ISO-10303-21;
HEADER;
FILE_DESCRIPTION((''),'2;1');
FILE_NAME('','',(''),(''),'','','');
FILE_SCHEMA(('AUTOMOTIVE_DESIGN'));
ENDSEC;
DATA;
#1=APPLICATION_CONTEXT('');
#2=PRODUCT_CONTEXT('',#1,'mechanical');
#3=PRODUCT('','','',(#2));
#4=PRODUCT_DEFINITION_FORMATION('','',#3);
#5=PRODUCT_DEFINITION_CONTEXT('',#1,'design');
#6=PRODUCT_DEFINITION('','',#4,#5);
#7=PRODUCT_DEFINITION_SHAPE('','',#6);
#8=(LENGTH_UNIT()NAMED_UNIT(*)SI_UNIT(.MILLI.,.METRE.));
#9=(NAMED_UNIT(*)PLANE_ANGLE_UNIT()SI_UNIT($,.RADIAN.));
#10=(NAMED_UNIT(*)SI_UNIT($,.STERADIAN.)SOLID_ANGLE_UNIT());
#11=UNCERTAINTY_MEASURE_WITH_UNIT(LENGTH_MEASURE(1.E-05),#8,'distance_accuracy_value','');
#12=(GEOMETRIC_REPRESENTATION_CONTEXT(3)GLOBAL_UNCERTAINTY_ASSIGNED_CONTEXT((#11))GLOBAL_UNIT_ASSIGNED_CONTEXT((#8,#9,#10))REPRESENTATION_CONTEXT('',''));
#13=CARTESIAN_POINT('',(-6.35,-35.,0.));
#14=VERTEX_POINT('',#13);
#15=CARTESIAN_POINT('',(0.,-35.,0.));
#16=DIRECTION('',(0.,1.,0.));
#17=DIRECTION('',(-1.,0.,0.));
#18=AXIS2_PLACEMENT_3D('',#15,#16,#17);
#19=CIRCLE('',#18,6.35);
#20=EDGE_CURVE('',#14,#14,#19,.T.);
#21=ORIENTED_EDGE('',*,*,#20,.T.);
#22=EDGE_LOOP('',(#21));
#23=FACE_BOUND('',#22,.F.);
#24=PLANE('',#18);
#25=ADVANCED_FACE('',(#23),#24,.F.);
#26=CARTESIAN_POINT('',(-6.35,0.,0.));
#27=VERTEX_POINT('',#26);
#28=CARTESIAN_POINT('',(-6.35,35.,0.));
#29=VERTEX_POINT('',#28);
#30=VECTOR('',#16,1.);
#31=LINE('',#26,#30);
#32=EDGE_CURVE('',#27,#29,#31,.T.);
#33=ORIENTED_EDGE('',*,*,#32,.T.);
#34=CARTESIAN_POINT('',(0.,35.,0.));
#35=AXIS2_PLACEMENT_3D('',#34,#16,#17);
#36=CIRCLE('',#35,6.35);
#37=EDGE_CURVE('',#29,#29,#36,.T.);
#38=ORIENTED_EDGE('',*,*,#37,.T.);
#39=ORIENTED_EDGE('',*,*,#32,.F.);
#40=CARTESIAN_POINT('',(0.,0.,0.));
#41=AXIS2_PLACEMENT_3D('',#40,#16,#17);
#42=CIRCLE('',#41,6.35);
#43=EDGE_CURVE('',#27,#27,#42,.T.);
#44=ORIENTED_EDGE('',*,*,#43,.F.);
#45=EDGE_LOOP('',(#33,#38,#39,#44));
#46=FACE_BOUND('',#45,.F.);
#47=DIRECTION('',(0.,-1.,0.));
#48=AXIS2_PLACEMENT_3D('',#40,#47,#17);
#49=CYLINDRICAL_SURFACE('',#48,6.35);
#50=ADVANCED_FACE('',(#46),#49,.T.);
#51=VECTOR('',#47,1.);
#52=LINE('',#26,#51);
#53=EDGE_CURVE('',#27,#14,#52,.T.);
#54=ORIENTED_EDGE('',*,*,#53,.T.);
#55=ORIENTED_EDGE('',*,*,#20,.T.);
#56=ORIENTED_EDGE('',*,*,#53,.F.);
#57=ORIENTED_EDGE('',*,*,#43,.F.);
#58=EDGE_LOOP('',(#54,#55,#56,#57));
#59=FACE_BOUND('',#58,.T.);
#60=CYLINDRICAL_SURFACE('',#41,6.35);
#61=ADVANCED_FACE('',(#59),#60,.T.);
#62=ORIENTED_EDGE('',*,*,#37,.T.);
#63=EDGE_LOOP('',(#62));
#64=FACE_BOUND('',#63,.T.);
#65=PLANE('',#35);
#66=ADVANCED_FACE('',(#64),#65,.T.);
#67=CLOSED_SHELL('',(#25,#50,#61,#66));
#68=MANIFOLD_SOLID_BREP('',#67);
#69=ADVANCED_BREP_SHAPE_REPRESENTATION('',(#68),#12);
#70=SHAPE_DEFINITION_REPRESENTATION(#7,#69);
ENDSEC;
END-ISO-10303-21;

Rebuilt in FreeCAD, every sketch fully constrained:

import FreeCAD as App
import Part
import Sketcher

V = App.Vector
Q = App.Units.Quantity

doc = App.newDocument("Part")
body = doc.addObject("PartDesign::Body", "Body")

sketch1 = doc.addObject("Sketcher::SketchObject", "Sketch")
body.addObject(sketch1)
sketch1.AttachmentSupport = (doc.XZ_Plane, [""])
sketch1.MapMode = "FlatFace"
sketch1.addGeometry(Part.Circle(V(0, 0, 0), V(0, 0, 1), 6.35), False)
sketch1.addConstraint([
    Sketcher.Constraint("Coincident", 0, 3, -1, 1),
    Sketcher.Constraint("Diameter", 0, Q("12.7 mm")),
])
pad1 = doc.addObject("PartDesign::Pad", "Pad")
body.addObject(pad1)
pad1.Profile = sketch1
pad1.Length = 70
pad1.Midplane = True

doc.recompute()
